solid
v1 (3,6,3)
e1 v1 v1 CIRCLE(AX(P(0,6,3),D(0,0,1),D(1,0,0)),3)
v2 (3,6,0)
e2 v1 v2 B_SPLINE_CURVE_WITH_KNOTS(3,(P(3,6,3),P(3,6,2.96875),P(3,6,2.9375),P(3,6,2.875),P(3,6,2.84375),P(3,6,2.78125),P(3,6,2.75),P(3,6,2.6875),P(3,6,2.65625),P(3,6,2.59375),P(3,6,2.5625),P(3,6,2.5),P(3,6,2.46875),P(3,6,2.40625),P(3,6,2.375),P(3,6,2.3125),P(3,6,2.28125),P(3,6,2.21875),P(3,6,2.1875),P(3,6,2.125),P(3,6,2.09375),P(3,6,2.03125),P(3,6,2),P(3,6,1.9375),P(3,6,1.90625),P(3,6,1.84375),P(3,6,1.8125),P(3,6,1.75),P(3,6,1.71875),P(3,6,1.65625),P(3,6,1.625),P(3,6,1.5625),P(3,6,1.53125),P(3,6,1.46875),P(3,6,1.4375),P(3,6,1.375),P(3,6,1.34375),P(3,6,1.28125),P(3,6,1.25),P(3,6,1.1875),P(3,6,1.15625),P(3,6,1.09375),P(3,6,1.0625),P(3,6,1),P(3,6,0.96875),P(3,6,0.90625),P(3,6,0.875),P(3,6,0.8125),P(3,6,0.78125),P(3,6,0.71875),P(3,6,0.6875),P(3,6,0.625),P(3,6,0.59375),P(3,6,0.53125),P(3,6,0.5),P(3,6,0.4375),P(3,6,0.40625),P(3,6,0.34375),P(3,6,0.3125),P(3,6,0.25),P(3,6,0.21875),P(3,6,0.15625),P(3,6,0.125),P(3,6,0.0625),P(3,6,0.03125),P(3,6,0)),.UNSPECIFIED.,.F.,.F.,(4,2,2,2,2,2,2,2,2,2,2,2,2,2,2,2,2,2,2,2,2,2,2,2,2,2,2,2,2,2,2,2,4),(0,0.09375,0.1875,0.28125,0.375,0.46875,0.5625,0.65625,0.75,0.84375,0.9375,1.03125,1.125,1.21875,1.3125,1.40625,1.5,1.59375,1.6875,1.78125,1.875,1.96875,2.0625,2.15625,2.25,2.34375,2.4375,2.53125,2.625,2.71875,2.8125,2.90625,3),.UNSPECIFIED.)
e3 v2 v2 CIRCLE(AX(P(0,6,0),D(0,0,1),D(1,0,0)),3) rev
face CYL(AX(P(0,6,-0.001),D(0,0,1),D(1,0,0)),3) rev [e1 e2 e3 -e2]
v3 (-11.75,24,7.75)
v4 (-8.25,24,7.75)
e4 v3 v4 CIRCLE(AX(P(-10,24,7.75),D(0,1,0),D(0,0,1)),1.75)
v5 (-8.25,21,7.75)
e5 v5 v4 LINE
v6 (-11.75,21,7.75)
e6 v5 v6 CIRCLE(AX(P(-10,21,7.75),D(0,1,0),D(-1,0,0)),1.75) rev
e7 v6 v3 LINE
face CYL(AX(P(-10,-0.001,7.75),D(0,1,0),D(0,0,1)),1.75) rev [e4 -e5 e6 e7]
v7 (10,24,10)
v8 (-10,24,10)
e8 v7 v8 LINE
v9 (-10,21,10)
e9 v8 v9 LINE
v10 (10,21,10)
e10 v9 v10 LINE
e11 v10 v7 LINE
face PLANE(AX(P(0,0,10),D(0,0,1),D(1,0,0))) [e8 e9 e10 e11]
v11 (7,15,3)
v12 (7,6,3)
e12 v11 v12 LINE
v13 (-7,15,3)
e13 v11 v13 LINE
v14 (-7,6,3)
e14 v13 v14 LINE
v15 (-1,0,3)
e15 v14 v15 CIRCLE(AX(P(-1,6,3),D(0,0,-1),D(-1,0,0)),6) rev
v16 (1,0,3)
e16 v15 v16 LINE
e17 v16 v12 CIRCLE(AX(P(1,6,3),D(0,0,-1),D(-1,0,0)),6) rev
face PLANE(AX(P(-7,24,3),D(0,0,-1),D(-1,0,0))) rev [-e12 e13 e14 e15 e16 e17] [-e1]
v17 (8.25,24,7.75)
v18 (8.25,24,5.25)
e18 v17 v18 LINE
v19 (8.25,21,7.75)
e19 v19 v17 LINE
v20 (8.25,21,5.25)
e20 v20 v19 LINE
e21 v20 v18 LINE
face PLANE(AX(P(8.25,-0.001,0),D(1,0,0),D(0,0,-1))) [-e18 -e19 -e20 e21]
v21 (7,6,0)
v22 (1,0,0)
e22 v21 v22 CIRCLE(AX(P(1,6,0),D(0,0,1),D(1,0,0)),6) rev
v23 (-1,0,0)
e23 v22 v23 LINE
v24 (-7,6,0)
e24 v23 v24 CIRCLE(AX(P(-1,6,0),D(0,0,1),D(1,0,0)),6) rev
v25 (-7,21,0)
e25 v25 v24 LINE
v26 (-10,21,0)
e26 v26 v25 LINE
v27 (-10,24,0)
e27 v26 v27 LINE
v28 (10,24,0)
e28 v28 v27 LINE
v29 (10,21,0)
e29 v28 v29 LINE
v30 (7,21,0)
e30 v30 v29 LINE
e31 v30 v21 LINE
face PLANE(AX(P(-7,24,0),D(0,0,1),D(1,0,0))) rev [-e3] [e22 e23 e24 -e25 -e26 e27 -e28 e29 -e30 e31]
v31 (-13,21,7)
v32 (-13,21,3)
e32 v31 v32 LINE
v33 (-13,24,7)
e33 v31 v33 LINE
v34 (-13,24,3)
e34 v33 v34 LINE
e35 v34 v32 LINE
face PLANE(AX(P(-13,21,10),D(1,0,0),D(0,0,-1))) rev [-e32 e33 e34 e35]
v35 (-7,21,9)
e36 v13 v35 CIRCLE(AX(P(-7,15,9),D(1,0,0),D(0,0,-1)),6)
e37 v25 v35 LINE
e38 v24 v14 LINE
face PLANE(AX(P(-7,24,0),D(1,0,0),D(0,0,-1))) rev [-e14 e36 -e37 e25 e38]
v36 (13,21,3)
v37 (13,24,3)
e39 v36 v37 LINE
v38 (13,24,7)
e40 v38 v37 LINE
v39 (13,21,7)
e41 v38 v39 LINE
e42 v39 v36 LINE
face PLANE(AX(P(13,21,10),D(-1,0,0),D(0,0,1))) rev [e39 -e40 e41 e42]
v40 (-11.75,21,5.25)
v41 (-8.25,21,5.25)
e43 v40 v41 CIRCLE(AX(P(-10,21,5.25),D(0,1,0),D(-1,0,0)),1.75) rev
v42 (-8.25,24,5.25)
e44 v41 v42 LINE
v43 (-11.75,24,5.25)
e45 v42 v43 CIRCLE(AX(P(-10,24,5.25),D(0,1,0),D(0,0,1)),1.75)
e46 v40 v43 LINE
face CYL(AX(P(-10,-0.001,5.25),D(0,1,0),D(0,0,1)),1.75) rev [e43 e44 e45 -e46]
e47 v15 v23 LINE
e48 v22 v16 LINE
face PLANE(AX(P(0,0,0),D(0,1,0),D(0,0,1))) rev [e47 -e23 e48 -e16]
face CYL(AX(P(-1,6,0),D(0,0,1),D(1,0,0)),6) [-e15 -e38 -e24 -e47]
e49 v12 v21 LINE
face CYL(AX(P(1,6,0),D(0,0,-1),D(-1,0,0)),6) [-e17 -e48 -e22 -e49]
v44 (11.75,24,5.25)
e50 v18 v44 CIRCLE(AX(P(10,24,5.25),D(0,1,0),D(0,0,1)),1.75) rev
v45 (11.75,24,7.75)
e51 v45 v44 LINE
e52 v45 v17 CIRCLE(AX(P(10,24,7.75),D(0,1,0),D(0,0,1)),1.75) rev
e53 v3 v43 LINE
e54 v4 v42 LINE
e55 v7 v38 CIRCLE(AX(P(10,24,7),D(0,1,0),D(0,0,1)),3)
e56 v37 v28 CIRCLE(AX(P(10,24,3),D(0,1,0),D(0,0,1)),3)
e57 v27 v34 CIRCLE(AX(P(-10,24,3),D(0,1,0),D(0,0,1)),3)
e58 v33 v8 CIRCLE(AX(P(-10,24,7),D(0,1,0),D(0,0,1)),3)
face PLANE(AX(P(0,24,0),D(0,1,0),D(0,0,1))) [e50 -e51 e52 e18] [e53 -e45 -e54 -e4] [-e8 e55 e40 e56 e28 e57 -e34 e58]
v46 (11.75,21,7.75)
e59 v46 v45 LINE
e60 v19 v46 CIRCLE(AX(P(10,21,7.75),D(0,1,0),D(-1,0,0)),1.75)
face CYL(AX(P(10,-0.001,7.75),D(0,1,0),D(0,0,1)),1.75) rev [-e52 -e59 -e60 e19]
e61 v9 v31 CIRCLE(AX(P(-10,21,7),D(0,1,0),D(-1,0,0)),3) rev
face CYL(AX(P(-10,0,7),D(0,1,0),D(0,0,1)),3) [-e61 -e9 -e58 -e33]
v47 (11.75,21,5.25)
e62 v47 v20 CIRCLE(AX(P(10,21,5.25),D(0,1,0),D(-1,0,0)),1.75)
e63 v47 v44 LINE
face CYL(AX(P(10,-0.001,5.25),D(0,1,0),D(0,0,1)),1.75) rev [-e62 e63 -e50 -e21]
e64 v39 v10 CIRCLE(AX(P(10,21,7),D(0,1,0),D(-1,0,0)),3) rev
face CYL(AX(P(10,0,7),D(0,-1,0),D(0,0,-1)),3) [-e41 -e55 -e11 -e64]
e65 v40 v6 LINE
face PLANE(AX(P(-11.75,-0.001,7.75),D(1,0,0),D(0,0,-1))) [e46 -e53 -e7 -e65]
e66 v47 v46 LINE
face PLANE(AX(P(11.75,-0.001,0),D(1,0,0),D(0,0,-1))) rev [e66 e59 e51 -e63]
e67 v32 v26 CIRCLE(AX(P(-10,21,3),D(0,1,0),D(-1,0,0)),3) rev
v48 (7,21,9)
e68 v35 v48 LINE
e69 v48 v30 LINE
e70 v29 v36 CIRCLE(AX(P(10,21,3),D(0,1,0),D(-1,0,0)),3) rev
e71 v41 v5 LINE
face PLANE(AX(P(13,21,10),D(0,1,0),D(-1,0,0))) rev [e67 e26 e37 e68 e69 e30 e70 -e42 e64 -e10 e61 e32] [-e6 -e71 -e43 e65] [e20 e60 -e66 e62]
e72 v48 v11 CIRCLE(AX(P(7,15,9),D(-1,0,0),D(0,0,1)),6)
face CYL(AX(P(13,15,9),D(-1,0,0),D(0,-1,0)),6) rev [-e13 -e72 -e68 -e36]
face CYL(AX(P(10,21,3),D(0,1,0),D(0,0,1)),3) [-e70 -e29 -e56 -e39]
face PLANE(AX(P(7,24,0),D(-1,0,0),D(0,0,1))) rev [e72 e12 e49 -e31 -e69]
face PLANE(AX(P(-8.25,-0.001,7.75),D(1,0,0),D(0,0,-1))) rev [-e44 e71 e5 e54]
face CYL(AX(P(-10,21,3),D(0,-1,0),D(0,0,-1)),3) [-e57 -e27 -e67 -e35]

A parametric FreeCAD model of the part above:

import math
import FreeCAD as App
import Part
import Sketcher

V = App.Vector


def edges_at(feature, points):
    """Names of the edges that pass closest to the given points."""
    edges = feature.Shape.Edges
    near = lambda p: min(range(len(edges)), key=lambda i: edges[i].distToShape(Part.Vertex(*p))[0])
    return sorted({f"Edge{near(p) + 1}" for p in points})


def add_polygon(sketch, points):
    """Adds a closed chain of lines whose ends are joined by coincident constraints."""
    first, n = sketch.GeometryCount, len(points)
    for a, b in zip(points, points[1:] + points[:1]):
        sketch.addGeometry(Part.LineSegment(App.Vector(*a, 0), App.Vector(*b, 0)), False)
    for i in range(n):
        sketch.addConstraint(Sketcher.Constraint("Coincident", first + i, 2, first + (i + 1) % n, 1))

doc = App.newDocument("Part")
params = doc.addObject("Spreadsheet::Sheet", "Params")
for row, (alias, value) in enumerate([
    ("sketch1_width", "14 mm"),
    ("sketch1_height", "3 mm"),
    ("pad1_length", "24 mm"),
    ("sketch2_diameter", "6 mm"),
    ("sketch3_width", "26 mm"),
    ("sketch3_height", "3 mm"),
    ("pad2_length", "10 mm"),
    ("sketch4_radius", "1.75 mm"),
    ("sketch4_height", "2.5 mm"),
    ("sketch5_radius", "1.75 mm"),
    ("sketch5_height", "2.5 mm"),
    ("fillet_radius", "3 mm"),
    ("fillet2_radius", "6 mm"),
], start=1):
    params.set(f"A{row}", alias)
    params.set(f"B{row}", "=" + value)
    params.setAlias(f"B{row}", alias)

body = doc.addObject("PartDesign::Body", "Body")

# Sketch on XZ plane
sketch1 = body.newObject("Sketcher::SketchObject", "Sketch")
sketch1.AttachmentSupport = (doc.getObject("XZ_Plane"), [""])
sketch1.MapMode = "FlatFace"
add_polygon(sketch1, [(-7, 0), (-7, 3), (7, 3), (7, 0)])  # lines 0-3
sketch1.addConstraint(Sketcher.Constraint("Vertical", 0))
sketch1.addConstraint(Sketcher.Constraint("Horizontal", 1))
sketch1.addConstraint(Sketcher.Constraint("Vertical", 2))
sketch1.addConstraint(Sketcher.Constraint("Horizontal", 3))
sketch1.addConstraint(Sketcher.Constraint("Symmetric", 2, 2, 3, 2, -1, 1))
sketch1.addConstraint(Sketcher.Constraint("DistanceX", 1, 1, 1, 2, 14.0))
sketch1.addConstraint(Sketcher.Constraint("DistanceY", 0, 1, 0, 2, 3.0))
sketch1.setExpression("Constraints[9]", "Params.sketch1_width")
sketch1.setExpression("Constraints[10]", "Params.sketch1_height")
pad1 = body.newObject("PartDesign::Pad", "Pad")
pad1.Profile = sketch1
pad1.setExpression("Length", "Params.pad1_length")
pad1.Reversed = True

# Sketch on XY plane
sketch2 = body.newObject("Sketcher::SketchObject", "Sketch001")
sketch2.AttachmentSupport = (doc.getObject("XY_Plane"), [""])
sketch2.MapMode = "FlatFace"
sketch2.AttachmentOffset = App.Placement(V(0, 0, 3), App.Rotation())
sketch2.addGeometry(Part.Circle(V(0, 6, 0), V(0, 0, 1), 3), False)
sketch2.addConstraint(Sketcher.Constraint("PointOnObject", 0, 3, -2))
sketch2.addConstraint(Sketcher.Constraint("Diameter", 0, 6.0))
sketch2.addConstraint(Sketcher.Constraint("DistanceY", -1, 1, 0, 3, 6.0))
sketch2.setExpression("Constraints[1]", "Params.sketch2_diameter")
pocket1 = body.newObject("PartDesign::Pocket", "Pocket")
pocket1.Profile = sketch2
pocket1.Type = "UpToFirst"

# Sketch on XY plane
sketch3 = body.newObject("Sketcher::SketchObject", "Sketch002")
sketch3.AttachmentSupport = (doc.getObject("XY_Plane"), [""])
sketch3.MapMode = "FlatFace"
add_polygon(sketch3, [(-13, 24), (-13, 21), (13, 21), (13, 24)])  # lines 0-3
sketch3.addConstraint(Sketcher.Constraint("Vertical", 0))
sketch3.addConstraint(Sketcher.Constraint("Horizontal", 1))
sketch3.addConstraint(Sketcher.Constraint("Vertical", 2))
sketch3.addConstraint(Sketcher.Constraint("Horizontal", 3))
sketch3.addConstraint(Sketcher.Constraint("DistanceX", 1, 1, 1, 2, 26.0))
sketch3.addConstraint(Sketcher.Constraint("DistanceY", 0, 2, 0, 1, 3.0))
sketch3.addConstraint(Sketcher.Constraint("DistanceX", 0, 2, -1, 1, 13.0))
sketch3.addConstraint(Sketcher.Constraint("DistanceY", -1, 1, 0, 2, 21.0))
sketch3.setExpression("Constraints[8]", "Params.sketch3_width")
sketch3.setExpression("Constraints[9]", "Params.sketch3_height")
pad2 = body.newObject("PartDesign::Pad", "Pad001")
pad2.Profile = sketch3
pad2.setExpression("Length", "Params.pad2_length")

# Sketch on XZ plane
sketch4 = body.newObject("Sketcher::SketchObject", "Sketch003")
sketch4.AttachmentSupport = (doc.getObject("XZ_Plane"), [""])
sketch4.MapMode = "FlatFace"
sketch4.AttachmentOffset = App.Placement(V(0, 0, -24), App.Rotation())
sketch4.addGeometry(Part.ArcOfCircle(Part.Circle(V(10, 5.2, 0), V(0, 0, 1), 1.8), math.radians(180), math.radians(360)), False)
sketch4.addGeometry(Part.LineSegment(V(8.2, 5.2, 0), V(8.2, 7.8, 0)), False)
sketch4.addGeometry(Part.ArcOfCircle(Part.Circle(V(10, 7.8, 0), V(0, 0, 1), 1.8), math.radians(0), math.radians(180)), False)
sketch4.addGeometry(Part.LineSegment(V(11.8, 7.8, 0), V(11.8, 5.2, 0)), False)
sketch4.addConstraint(Sketcher.Constraint("Tangent", 0, 1, 1, 1))
sketch4.addConstraint(Sketcher.Constraint("Tangent", 1, 2, 2, 2))
sketch4.addConstraint(Sketcher.Constraint("Tangent", 2, 1, 3, 1))
sketch4.addConstraint(Sketcher.Constraint("Tangent", 3, 2, 0, 2))
sketch4.addConstraint(Sketcher.Constraint("Vertical", 1))
sketch4.addConstraint(Sketcher.Constraint("Vertical", 3))
sketch4.addConstraint(Sketcher.Constraint("Radius", 0, 1.75))
sketch4.addConstraint(Sketcher.Constraint("DistanceY", 1, 1, 1, 2, 2.5))
sketch4.addConstraint(Sketcher.Constraint("DistanceX", -1, 1, 0, 3, 10.0))
sketch4.addConstraint(Sketcher.Constraint("DistanceY", -1, 1, 0, 3, 5.25))
sketch4.setExpression("Constraints[6]", "Params.sketch4_radius")
sketch4.setExpression("Constraints[7]", "Params.sketch4_height")
pocket2 = body.newObject("PartDesign::Pocket", "Pocket001")
pocket2.Profile = sketch4
pocket2.Type = "UpToFirst"
pocket2.Reversed = True

# Sketch on XZ plane
sketch5 = body.newObject("Sketcher::SketchObject", "Sketch004")
sketch5.AttachmentSupport = (doc.getObject("XZ_Plane"), [""])
sketch5.MapMode = "FlatFace"
sketch5.AttachmentOffset = App.Placement(V(0, 0, -24), App.Rotation())
sketch5.addGeometry(Part.LineSegment(V(-8.2, 7.8, 0), V(-8.2, 5.2, 0)), False)
sketch5.addGeometry(Part.ArcOfCircle(Part.Circle(V(-10, 5.2, 0), V(0, 0, 1), 1.8), math.radians(180), math.radians(360)), False)
sketch5.addGeometry(Part.LineSegment(V(-11.8, 5.2, 0), V(-11.8, 7.8, 0)), False)
sketch5.addGeometry(Part.ArcOfCircle(Part.Circle(V(-10, 7.8, 0), V(0, 0, 1), 1.8), math.radians(0), math.radians(180)), False)
sketch5.addConstraint(Sketcher.Constraint("Tangent", 0, 2, 1, 2))
sketch5.addConstraint(Sketcher.Constraint("Tangent", 1, 1, 2, 1))
sketch5.addConstraint(Sketcher.Constraint("Tangent", 2, 2, 3, 2))
sketch5.addConstraint(Sketcher.Constraint("Tangent", 3, 1, 0, 1))
sketch5.addConstraint(Sketcher.Constraint("Vertical", 0))
sketch5.addConstraint(Sketcher.Constraint("Vertical", 2))
sketch5.addConstraint(Sketcher.Constraint("Radius", 1, 1.75))
sketch5.addConstraint(Sketcher.Constraint("DistanceY", 0, 2, 0, 1, 2.5))
sketch5.addConstraint(Sketcher.Constraint("DistanceX", 1, 3, -1, 1, 10.0))
sketch5.addConstraint(Sketcher.Constraint("DistanceY", -1, 1, 1, 3, 5.25))
sketch5.setExpression("Constraints[6]", "Params.sketch5_radius")
sketch5.setExpression("Constraints[7]", "Params.sketch5_height")
pocket3 = body.newObject("PartDesign::Pocket", "Pocket002")
pocket3.Profile = sketch5
pocket3.Type = "UpToFirst"
pocket3.Reversed = True
doc.recompute()

fillet = body.newObject("PartDesign::Fillet", "Fillet")
fillet.Base = (pocket3, edges_at(pocket3, [
    (13, 22.5, 0),
    (-13, 22.5, 0),
    (13, 22.5, 10),
    (-13, 22.5, 10),
]))
fillet.setExpression("Radius", "Params.fillet_radius")
doc.recompute()

fillet2 = body.newObject("PartDesign::Fillet", "Fillet001")
fillet2.Base = (fillet, edges_at(fillet, [(0, 21, 3), (-7, 0, 1.5), (7, 0, 1.5)]))
fillet2.setExpression("Radius", "Params.fillet2_radius")

doc.recompute()
